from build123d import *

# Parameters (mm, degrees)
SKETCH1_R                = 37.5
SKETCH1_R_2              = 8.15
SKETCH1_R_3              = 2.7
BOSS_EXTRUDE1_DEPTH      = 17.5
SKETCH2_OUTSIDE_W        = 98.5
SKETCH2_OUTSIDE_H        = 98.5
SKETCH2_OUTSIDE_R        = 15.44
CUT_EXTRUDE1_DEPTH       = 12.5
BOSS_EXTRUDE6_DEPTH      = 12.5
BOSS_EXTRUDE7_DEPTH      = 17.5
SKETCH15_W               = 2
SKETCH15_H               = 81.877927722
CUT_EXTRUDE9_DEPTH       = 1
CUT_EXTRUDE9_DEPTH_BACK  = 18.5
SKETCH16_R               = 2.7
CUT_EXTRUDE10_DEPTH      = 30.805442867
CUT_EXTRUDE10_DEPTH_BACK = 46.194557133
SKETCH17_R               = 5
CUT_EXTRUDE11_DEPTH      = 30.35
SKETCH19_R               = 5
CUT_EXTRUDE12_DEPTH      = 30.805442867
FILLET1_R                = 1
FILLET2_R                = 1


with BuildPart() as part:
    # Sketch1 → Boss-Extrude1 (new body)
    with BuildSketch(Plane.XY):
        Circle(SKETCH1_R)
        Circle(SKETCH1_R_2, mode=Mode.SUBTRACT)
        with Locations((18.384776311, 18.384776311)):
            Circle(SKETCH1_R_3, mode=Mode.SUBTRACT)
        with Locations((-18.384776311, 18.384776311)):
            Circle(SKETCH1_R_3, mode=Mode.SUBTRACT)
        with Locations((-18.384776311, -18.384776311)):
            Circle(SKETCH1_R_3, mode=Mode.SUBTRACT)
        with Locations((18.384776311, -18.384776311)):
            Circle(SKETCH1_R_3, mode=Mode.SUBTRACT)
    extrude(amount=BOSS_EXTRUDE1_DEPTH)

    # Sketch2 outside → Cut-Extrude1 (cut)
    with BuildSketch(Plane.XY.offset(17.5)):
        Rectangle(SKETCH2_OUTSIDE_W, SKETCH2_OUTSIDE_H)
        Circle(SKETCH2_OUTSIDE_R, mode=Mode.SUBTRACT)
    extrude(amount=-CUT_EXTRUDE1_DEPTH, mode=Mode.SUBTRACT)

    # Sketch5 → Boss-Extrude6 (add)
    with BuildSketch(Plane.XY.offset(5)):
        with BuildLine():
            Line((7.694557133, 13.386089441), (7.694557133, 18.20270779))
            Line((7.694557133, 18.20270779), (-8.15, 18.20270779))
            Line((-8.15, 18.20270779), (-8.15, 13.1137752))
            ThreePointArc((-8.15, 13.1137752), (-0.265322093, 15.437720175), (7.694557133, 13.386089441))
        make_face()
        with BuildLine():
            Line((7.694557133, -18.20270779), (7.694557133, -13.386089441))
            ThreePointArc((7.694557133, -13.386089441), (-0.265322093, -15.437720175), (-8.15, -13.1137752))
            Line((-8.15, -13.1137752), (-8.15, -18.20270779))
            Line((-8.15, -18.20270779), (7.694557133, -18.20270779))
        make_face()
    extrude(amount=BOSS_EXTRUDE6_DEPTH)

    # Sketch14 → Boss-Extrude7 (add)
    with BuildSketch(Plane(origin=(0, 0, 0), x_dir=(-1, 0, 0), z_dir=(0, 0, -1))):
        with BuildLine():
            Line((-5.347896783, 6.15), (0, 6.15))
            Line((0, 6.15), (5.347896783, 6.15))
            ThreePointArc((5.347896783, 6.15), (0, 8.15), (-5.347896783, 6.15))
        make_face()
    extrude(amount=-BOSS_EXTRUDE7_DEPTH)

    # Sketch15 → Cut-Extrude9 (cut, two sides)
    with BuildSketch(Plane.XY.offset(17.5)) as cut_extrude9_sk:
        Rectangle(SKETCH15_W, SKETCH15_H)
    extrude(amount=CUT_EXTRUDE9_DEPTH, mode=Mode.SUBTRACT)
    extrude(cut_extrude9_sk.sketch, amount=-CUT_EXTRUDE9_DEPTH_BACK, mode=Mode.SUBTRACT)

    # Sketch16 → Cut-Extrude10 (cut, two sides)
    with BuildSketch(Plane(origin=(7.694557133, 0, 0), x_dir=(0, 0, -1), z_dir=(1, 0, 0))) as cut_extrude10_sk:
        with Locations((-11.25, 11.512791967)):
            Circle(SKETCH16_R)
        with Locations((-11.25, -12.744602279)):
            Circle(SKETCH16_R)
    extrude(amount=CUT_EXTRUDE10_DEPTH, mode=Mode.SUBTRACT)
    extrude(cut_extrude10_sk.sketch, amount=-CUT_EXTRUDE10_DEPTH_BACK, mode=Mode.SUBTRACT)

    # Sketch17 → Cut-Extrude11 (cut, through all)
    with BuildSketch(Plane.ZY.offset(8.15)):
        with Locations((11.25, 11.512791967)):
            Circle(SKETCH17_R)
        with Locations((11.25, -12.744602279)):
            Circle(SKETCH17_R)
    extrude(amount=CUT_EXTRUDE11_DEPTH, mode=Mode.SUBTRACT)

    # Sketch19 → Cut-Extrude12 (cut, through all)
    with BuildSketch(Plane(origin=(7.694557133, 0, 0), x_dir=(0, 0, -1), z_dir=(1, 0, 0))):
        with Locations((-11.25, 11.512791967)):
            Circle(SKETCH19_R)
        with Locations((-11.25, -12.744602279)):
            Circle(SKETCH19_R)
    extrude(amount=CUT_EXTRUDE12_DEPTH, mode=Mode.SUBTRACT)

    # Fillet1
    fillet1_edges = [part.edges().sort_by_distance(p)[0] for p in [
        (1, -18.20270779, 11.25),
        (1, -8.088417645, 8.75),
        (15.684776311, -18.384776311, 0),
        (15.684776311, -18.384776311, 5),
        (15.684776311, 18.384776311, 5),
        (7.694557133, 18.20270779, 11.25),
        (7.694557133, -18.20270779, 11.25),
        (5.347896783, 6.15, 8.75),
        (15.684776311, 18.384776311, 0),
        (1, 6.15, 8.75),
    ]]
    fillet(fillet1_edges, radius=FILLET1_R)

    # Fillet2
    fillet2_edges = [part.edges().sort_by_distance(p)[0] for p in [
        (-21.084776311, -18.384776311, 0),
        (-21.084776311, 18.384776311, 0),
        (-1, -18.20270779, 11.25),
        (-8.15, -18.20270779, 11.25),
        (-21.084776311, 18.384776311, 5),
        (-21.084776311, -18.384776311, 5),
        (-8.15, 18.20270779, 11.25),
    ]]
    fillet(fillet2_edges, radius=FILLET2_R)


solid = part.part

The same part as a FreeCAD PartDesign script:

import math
import FreeCAD as App
import Part
import Sketcher
from FreeCAD import Vector


def edges_at(feature, points):
    """Names of the edges that pass closest to the given points."""
    edges = feature.Shape.Edges
    near = lambda p: min(range(len(edges)), key=lambda i: edges[i].distToShape(Part.Vertex(*p))[0])
    return sorted({f"Edge{near(p) + 1}" for p in points})

doc = App.newDocument("Part")
body = doc.addObject("PartDesign::Body", "Body")
body.AllowCompound = True

sketch1 = body.newObject("Sketcher::SketchObject", "Sketch")
sketch1.AttachmentSupport = (doc.getObject("XY_Plane"), [""])
sketch1.MapMode = "FlatFace"
sketch1.addGeometry([
    Part.Circle(Vector(0, 0, 0), Vector(0, 0, 1), 37.5),
    Part.Circle(Vector(-18.4, -18.4, 0), Vector(0, 0, 1), 2.7),
    Part.Circle(Vector(18.4, -18.4, 0), Vector(0, 0, 1), 2.7),
    Part.Circle(Vector(-18.4, 18.4, 0), Vector(0, 0, 1), 2.7),
    Part.Circle(Vector(0, 0, 0), Vector(0, 0, 1), 8.2),
    Part.Circle(Vector(18.4, 18.4, 0), Vector(0, 0, 1), 2.7),
], False)
sketch1.addConstraint([
    Sketcher.Constraint("Coincident", 0, 3, -1, 1),
    Sketcher.Constraint("Coincident", 4, 3, -1, 1),
    Sketcher.Constraint("Equal", 1, 2),
    Sketcher.Constraint("Equal", 2, 3),
    Sketcher.Constraint("Equal", 3, 5),
    Sketcher.Constraint("Symmetric", 2, 3, 3, 3, -1, 1),
    Sketcher.Constraint("Symmetric", 1, 3, 5, 3, -1, 1),
    Sketcher.Constraint("Symmetric", 1, 3, 2, 3, -2),
    Sketcher.Constraint("Diameter", 0, 75.0),
    Sketcher.Constraint("Diameter", 1, 5.4),
    Sketcher.Constraint("Diameter", 4, 16.3),
    Sketcher.Constraint("DistanceX", 1, 3, -1, 1, 18.384776),
    Sketcher.Constraint("DistanceY", 1, 3, -1, 1, 18.384776),
])
pad1 = body.newObject("PartDesign::Pad", "Pad")
pad1.Profile = sketch1
pad1.Length = 17.5

sketch2 = body.newObject("Sketcher::SketchObject", "Sketch001")
sketch2.AttachmentSupport = (doc.getObject("XY_Plane"), [""])
sketch2.MapMode = "FlatFace"
sketch2.AttachmentOffset = App.Placement(Vector(0, 0, 17.5), App.Rotation())
sketch2.addGeometry([
    Part.LineSegment(Vector(-49, 49, 0), Vector(-49, -49, 0)),
    Part.LineSegment(Vector(-49, -49, 0), Vector(49, -49, 0)),
    Part.LineSegment(Vector(49, -49, 0), Vector(49, 49, 0)),
    Part.LineSegment(Vector(49, 49, 0), Vector(-49, 49, 0)),
    Part.Circle(Vector(0, 0, 0), Vector(0, 0, 1), 15),
], False)
sketch2.addConstraint([
    Sketcher.Constraint("Coincident", 0, 2, 1, 1),
    Sketcher.Constraint("Coincident", 1, 2, 2, 1),
    Sketcher.Constraint("Coincident", 2, 2, 3, 1),
    Sketcher.Constraint("Coincident", 3, 2, 0, 1),
    Sketcher.Constraint("Vertical", 0),
    Sketcher.Constraint("Horizontal", 1),
    Sketcher.Constraint("Vertical", 2),
    Sketcher.Constraint("Horizontal", 3),
    Sketcher.Constraint("Coincident", 4, 3, -1, 1),
    Sketcher.Constraint("Symmetric", 0, 2, 2, 2, -1, 1),
    Sketcher.Constraint("Equal", 3, 0),
    Sketcher.Constraint("Diameter", 4, 30.88),
    Sketcher.Constraint("DistanceX", 1, 1, 1, 2, 98.5),
])
pocket1 = body.newObject("PartDesign::Pocket", "Pocket")
pocket1.Profile = sketch2
pocket1.Length = 12.5

sketch3 = body.newObject("Sketcher::SketchObject", "Sketch002")
sketch3.AttachmentSupport = (doc.getObject("XY_Plane"), [""])
sketch3.MapMode = "FlatFace"
sketch3.AttachmentOffset = App.Placement(Vector(0, 0, 5), App.Rotation())
sketch3.addGeometry([
    Part.LineSegment(Vector(7.7, 13.4, 0), Vector(7.7, 18.2, 0)),
    Part.LineSegment(Vector(7.7, 18.2, 0), Vector(-8.2, 18.2, 0)),
    Part.LineSegment(Vector(-8.2, 18.2, 0), Vector(-8.2, 13.1, 0)),
    Part.ArcOfCircle(Part.Circle(Vector(0, 0, 0), Vector(0, 0, 1), 15.4), math.radians(60), math.radians(122)),
    Part.LineSegment(Vector(7.7, -18.2, 0), Vector(7.7, -13.4, 0)),
    Part.ArcOfCircle(Part.Circle(Vector(0, 0, 0), Vector(0, 0, 1), 15.4), math.radians(-122), math.radians(-60)),
    Part.LineSegment(Vector(-8.2, -13.1, 0), Vector(-8.2, -18.2, 0)),
    Part.LineSegment(Vector(-8.2, -18.2, 0), Vector(7.7, -18.2, 0)),
], False)
sketch3.addConstraint([
    Sketcher.Constraint("Coincident", 0, 2, 1, 1),
    Sketcher.Constraint("Coincident", 1, 2, 2, 1),
    Sketcher.Constraint("Coincident", 2, 2, 3, 2),
    Sketcher.Constraint("Coincident", 3, 1, 0, 1),
    Sketcher.Constraint("Coincident", 4, 2, 5, 2),
    Sketcher.Constraint("Coincident", 5, 1, 6, 1),
    Sketcher.Constraint("Coincident", 6, 2, 7, 1),
    Sketcher.Constraint("Coincident", 7, 2, 4, 1),
    Sketcher.Constraint("Vertical", 0),
    Sketcher.Constraint("Horizontal", 1),
    Sketcher.Constraint("Vertical", 2),
    Sketcher.Constraint("Vertical", 4),
    Sketcher.Constraint("Vertical", 6),
    Sketcher.Constraint("Horizontal", 7),
    Sketcher.Constraint("Coincident", 3, 3, -1, 1),
    Sketcher.Constraint("Coincident", 5, 3, -1, 1),
    Sketcher.Constraint("Equal", 3, 5),
    Sketcher.Constraint("Symmetric", 1, 2, 6, 2, -1),
    Sketcher.Constraint("Vertical", 3, 1, 4, 2),
    Sketcher.Constraint("Radius", 3, 15.44),
    Sketcher.Constraint("DistanceX", 1, 2, -1, 1, 8.15),
    Sketcher.Constraint("DistanceY", 0, 1, 0, 2, 4.816618),
    Sketcher.Constraint("DistanceX", 1, 2, 1, 1, 15.844557),
])
pad2 = body.newObject("PartDesign::Pad", "Pad001")
pad2.Profile = sketch3
pad2.Length = 12.5

sketch4 = body.newObject("Sketcher::SketchObject", "Sketch003")
sketch4.AttachmentSupport = (doc.getObject("XY_Plane"), [""])
sketch4.MapMode = "FlatFace"
sketch4.addGeometry([
    Part.LineSegment(Vector(5, 6, 0), Vector(-5, 6, 0)),
    Part.ArcOfCircle(Part.Circle(Vector(0, 0, 0), Vector(0, 0, 1), 8), math.radians(49), math.radians(131)),
], False)
sketch4.addConstraint([
    Sketcher.Constraint("Coincident", 0, 1, 1, 1),
    Sketcher.Constraint("Coincident", 1, 2, 0, 2),
    Sketcher.Constraint("Horizontal", 0),
    Sketcher.Constraint("Coincident", 1, 3, -1, 1),
    Sketcher.Constraint("Radius", 1, 8.15),
    Sketcher.Constraint("DistanceY", -1, 1, 0, 1, 6.15),
])
pad3 = body.newObject("PartDesign::Pad", "Pad002")
pad3.Profile = sketch4
pad3.Length = 17.5

sketch5 = body.newObject("Sketcher::SketchObject", "Sketch004")
sketch5.AttachmentSupport = (doc.getObject("XY_Plane"), [""])
sketch5.MapMode = "FlatFace"
sketch5.AttachmentOffset = App.Placement(Vector(0, 0, 17.5), App.Rotation())
sketch5.addGeometry([
    Part.LineSegment(Vector(-1, 40.9, 0), Vector(-1, -40.9, 0)),
    Part.LineSegment(Vector(-1, -40.9, 0), Vector(1, -40.9, 0)),
    Part.LineSegment(Vector(1, -40.9, 0), Vector(1, 40.9, 0)),
    Part.LineSegment(Vector(1, 40.9, 0), Vector(-1, 40.9, 0)),
], False)
sketch5.addConstraint([
    Sketcher.Constraint("Coincident", 0, 2, 1, 1),
    Sketcher.Constraint("Coincident", 1, 2, 2, 1),
    Sketcher.Constraint("Coincident", 2, 2, 3, 1),
    Sketcher.Constraint("Coincident", 3, 2, 0, 1),
    Sketcher.Constraint("Vertical", 0),
    Sketcher.Constraint("Horizontal", 1),
    Sketcher.Constraint("Vertical", 2),
    Sketcher.Constraint("Horizontal", 3),
    Sketcher.Constraint("Symmetric", 0, 2, 2, 2, -1, 1),
    Sketcher.Constraint("DistanceX", 1, 1, 1, 2, 2.0),
    Sketcher.Constraint("DistanceY", 0, 2, 0, 1, 81.877928),
])
pocket2 = body.newObject("PartDesign::Pocket", "Pocket001")
pocket2.Profile = sketch5
pocket2.Type = "ThroughAll"
pocket2.Midplane = True

sketch6 = body.newObject("Sketcher::SketchObject", "Sketch005")
sketch6.AttachmentSupport = (doc.getObject("YZ_Plane"), [""])
sketch6.MapMode = "FlatFace"
sketch6.AttachmentOffset = App.Placement(Vector(0, 0, 7.694557), App.Rotation())
sketch6.addGeometry([
    Part.Circle(Vector(11.5, 11.2, 0), Vector(0, 0, 1), 2.7),
    Part.Circle(Vector(-12.7, 11.2, 0), Vector(0, 0, 1), 2.7),
], False)
sketch6.addConstraint([
    Sketcher.Constraint("Equal", 0, 1),
    Sketcher.Constraint("Horizontal", 0, 3, 1, 3),
    Sketcher.Constraint("Diameter", 0, 5.4),
    Sketcher.Constraint("DistanceY", -1, 1, 0, 3, 11.25),
    Sketcher.Constraint("DistanceX", -1, 1, 0, 3, 11.512792),
    Sketcher.Constraint("DistanceX", 1, 3, -1, 1, 12.744602),
])
pocket3 = body.newObject("PartDesign::Pocket", "Pocket002")
pocket3.Profile = sketch6
pocket3.Type = "ThroughAll"
pocket3.Midplane = True

sketch7 = body.newObject("Sketcher::SketchObject", "Sketch006")
sketch7.AttachmentSupport = (doc.getObject("YZ_Plane"), [""])
sketch7.MapMode = "FlatFace"
sketch7.AttachmentOffset = App.Placement(Vector(0, 0, -8.15), App.Rotation())
sketch7.addGeometry([
    Part.Circle(Vector(12, 11, 0), Vector(0, 0, 1), 5),
    Part.Circle(Vector(-13, 11, 0), Vector(0, 0, 1), 5),
], False)
sketch7.addConstraint([
    Sketcher.Constraint("Equal", 0, 1),
    Sketcher.Constraint("Horizontal", 0, 3, 1, 3),
    Sketcher.Constraint("Diameter", 0, 10.0),
    Sketcher.Constraint("DistanceY", -1, 1, 0, 3, 11.25),
    Sketcher.Constraint("DistanceX", -1, 1, 0, 3, 11.512792),
    Sketcher.Constraint("DistanceX", 1, 3, -1, 1, 12.744602),
])
pocket4 = body.newObject("PartDesign::Pocket", "Pocket003")
pocket4.Profile = sketch7
pocket4.Type = "ThroughAll"

sketch8 = body.newObject("Sketcher::SketchObject", "Sketch007")
sketch8.AttachmentSupport = (doc.getObject("YZ_Plane"), [""])
sketch8.MapMode = "FlatFace"
sketch8.AttachmentOffset = App.Placement(Vector(0, 0, 7.694557), App.Rotation())
sketch8.addGeometry([
    Part.Circle(Vector(12, 11, 0), Vector(0, 0, 1), 5),
    Part.Circle(Vector(-13, 11, 0), Vector(0, 0, 1), 5),
], False)
sketch8.addConstraint([
    Sketcher.Constraint("Equal", 0, 1),
    Sketcher.Constraint("Horizontal", 0, 3, 1, 3),
    Sketcher.Constraint("Diameter", 0, 10.0),
    Sketcher.Constraint("DistanceY", -1, 1, 0, 3, 11.25),
    Sketcher.Constraint("DistanceX", -1, 1, 0, 3, 11.512792),
    Sketcher.Constraint("DistanceX", 1, 3, -1, 1, 12.744602),
])
pocket5 = body.newObject("PartDesign::Pocket", "Pocket004")
pocket5.Profile = sketch8
pocket5.Type = "ThroughAll"
pocket5.Reversed = True
doc.recompute()

fillet = body.newObject("PartDesign::Fillet", "Fillet")
fillet.Base = (pocket5, edges_at(pocket5, [
    (1, -18.203, 11.25),
    (1, -8.088, 8.75),
    (15.685, -18.385, 0),
    (15.685, -18.385, 5),
    (15.685, 18.385, 5),
    (7.695, 18.203, 11.25),
    (7.695, -18.203, 11.25),
    (5.348, 6.15, 8.75),
    (15.685, 18.385, 0),
    (1, 6.15, 8.75),
]))
fillet.Radius = 1
doc.recompute()

fillet2 = body.newObject("PartDesign::Fillet", "Fillet001")
fillet2.Base = (fillet, edges_at(fillet, [
    (-21.085, -18.385, 0),
    (-21.085, 18.385, 0),
    (-1, -18.203, 11.25),
    (-8.15, -18.203, 11.25),
    (-21.085, 18.385, 5),
    (-21.085, -18.385, 5),
    (-8.15, 18.203, 11.25),
]))
fillet2.Radius = 1

doc.recompute()
